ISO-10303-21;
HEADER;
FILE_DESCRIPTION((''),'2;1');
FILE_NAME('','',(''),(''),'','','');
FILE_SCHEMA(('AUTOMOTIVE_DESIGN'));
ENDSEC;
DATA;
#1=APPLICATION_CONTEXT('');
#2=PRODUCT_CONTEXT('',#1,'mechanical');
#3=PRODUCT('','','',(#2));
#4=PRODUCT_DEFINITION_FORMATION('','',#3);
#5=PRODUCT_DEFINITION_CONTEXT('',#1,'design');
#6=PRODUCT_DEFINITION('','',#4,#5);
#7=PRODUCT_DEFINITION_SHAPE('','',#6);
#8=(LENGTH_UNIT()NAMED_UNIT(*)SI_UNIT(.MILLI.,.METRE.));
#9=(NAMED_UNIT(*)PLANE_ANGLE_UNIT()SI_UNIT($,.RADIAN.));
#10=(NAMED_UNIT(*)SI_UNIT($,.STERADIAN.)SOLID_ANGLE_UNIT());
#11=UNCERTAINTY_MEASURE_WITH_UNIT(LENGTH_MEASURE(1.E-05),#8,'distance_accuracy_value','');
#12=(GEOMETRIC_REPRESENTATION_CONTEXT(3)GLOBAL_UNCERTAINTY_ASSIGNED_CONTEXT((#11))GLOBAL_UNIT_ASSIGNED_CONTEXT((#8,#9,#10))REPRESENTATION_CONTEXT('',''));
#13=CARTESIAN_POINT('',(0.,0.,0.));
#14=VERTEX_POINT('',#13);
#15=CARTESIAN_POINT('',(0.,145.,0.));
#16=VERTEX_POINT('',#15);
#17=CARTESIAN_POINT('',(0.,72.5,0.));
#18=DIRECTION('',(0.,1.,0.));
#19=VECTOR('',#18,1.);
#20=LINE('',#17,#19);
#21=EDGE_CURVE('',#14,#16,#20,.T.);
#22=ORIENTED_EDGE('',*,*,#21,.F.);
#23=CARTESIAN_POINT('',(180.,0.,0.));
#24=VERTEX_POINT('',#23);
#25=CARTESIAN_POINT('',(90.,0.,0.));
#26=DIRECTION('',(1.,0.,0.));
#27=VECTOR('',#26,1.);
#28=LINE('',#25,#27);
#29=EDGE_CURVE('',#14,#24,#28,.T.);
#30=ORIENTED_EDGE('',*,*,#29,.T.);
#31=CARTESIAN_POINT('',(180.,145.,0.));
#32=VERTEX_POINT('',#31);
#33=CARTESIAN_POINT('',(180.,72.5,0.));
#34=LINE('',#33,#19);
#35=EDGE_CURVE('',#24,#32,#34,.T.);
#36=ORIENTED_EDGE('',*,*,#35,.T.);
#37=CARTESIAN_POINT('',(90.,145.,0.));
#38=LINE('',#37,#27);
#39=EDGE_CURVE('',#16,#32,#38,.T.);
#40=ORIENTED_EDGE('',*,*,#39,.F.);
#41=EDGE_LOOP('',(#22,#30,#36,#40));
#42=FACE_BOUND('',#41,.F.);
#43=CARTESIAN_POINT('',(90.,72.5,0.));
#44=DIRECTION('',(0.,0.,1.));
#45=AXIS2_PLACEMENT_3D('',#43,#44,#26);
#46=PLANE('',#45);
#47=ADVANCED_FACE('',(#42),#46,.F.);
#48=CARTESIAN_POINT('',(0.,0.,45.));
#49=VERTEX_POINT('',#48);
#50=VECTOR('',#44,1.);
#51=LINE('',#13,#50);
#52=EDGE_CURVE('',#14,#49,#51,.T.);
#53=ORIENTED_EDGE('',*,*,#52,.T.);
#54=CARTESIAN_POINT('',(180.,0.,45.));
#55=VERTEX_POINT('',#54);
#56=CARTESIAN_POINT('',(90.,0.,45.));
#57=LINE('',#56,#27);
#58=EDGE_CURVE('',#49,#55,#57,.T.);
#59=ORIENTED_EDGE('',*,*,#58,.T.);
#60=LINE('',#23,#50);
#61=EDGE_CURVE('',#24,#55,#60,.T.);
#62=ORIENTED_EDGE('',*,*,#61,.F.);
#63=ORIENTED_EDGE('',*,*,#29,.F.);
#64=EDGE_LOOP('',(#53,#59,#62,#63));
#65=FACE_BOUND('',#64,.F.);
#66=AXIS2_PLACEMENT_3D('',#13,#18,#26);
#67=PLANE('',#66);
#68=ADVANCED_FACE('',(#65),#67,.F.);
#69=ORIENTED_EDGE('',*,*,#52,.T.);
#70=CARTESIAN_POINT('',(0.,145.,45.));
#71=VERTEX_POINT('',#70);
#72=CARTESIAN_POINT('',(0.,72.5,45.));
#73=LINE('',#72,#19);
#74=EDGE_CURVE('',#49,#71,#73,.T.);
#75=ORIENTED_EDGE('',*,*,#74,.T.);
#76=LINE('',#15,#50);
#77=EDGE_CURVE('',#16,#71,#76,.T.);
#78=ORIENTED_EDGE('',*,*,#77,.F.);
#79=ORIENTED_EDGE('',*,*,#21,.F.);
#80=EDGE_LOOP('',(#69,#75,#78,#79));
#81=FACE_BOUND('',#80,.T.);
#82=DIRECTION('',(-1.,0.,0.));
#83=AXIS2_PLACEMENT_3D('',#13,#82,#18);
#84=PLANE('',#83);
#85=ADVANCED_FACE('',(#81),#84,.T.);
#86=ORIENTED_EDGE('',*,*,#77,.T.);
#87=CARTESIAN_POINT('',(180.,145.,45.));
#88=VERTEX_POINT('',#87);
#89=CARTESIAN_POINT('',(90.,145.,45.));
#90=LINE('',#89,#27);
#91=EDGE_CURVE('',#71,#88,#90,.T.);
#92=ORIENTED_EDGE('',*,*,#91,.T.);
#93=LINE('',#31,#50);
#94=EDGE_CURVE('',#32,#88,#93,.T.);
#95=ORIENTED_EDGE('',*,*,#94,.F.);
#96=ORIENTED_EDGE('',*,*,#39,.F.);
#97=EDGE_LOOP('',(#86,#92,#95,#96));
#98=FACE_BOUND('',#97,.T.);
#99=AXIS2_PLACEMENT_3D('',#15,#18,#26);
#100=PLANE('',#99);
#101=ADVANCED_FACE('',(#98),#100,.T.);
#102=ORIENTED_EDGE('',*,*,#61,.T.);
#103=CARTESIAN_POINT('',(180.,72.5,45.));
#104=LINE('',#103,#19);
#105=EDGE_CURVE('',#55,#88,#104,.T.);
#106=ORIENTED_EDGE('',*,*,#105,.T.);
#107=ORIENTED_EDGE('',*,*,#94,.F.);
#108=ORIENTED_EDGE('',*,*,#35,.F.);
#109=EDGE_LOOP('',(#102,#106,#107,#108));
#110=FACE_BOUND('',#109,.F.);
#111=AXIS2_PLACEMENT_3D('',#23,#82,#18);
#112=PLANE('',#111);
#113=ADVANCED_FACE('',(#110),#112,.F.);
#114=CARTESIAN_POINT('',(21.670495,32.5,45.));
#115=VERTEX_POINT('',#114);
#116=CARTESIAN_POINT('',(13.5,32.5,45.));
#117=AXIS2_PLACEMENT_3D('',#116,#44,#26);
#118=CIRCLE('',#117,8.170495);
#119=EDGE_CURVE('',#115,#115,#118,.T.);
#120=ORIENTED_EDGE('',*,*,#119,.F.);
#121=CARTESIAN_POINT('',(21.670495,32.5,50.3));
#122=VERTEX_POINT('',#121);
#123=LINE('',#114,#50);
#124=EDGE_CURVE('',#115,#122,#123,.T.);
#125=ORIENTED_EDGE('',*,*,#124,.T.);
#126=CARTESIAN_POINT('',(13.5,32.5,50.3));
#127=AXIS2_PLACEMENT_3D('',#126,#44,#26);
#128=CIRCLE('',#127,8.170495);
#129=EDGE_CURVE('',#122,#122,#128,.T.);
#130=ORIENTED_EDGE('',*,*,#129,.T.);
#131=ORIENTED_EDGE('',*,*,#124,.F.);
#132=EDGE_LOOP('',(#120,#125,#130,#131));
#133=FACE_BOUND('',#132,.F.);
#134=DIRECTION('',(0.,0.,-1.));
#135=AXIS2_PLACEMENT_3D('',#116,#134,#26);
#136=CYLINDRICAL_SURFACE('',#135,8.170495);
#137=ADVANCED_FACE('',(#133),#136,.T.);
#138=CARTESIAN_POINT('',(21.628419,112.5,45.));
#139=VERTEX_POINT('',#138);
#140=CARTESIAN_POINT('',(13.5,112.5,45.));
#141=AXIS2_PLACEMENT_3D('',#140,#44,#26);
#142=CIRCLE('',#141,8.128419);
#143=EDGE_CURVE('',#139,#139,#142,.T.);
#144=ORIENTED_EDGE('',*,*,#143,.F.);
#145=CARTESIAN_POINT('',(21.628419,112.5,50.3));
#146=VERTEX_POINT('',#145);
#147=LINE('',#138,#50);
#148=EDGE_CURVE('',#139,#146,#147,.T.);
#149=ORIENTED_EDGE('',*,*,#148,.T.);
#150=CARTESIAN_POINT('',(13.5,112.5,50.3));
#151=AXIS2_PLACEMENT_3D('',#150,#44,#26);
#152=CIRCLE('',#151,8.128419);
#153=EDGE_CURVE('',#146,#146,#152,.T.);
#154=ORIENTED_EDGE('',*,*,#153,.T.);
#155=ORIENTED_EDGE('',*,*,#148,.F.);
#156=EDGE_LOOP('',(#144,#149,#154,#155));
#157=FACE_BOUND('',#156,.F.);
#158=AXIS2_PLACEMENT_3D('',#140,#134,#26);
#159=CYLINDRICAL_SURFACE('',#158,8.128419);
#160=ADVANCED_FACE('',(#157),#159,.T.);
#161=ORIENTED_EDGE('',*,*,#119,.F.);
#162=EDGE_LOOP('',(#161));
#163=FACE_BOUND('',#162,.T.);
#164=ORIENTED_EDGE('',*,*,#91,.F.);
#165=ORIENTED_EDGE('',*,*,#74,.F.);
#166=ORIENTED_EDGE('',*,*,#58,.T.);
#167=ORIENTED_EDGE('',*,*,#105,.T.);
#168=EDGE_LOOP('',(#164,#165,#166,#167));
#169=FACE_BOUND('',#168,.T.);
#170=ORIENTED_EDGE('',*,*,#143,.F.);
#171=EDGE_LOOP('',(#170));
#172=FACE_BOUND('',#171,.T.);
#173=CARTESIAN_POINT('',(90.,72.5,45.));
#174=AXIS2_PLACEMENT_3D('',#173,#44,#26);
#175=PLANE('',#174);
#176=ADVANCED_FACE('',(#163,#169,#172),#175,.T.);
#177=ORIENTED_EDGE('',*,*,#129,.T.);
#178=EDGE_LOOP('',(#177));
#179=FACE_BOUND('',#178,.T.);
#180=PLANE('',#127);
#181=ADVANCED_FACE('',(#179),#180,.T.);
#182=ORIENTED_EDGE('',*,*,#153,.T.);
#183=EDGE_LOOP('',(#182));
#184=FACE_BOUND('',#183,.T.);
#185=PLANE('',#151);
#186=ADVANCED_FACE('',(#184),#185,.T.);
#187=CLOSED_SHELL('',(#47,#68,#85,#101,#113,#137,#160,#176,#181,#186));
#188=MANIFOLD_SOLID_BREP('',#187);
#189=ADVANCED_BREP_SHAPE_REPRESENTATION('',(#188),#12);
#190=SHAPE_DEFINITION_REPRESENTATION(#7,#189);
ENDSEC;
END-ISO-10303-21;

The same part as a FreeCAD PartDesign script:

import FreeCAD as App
import Part
import Sketcher

V = App.Vector
Q = App.Units.Quantity


def add_polygon(sketch, points):
    """Adds a closed chain of lines whose ends are joined by coincident constraints."""
    first, n = sketch.GeometryCount, len(points)
    for a, b in zip(points, points[1:] + points[:1]):
        sketch.addGeometry(Part.LineSegment(App.Vector(*a, 0), App.Vector(*b, 0)), False)
    for i in range(n):
        sketch.addConstraint(Sketcher.Constraint("Coincident", first + i, 2, first + (i + 1) % n, 1))

doc = App.newDocument("Part")
params = doc.addObject("Spreadsheet::Sheet", "Params")
for row, (alias, value) in enumerate([
    ("sketch1_width", "180 mm"),
    ("sketch1_height", "145 mm"),
    ("pad1_length", "45 mm"),
    ("pad2_length", "5.3 mm"),
], start=1):
    params.set(f"A{row}", alias)
    params.set(f"B{row}", "=" + value)
    params.setAlias(f"B{row}", alias)

body = doc.addObject("PartDesign::Body", "Body")

# Sketch on XY plane
sketch1 = doc.addObject("Sketcher::SketchObject", "Sketch")
body.addObject(sketch1)
sketch1.AttachmentSupport = (doc.XY_Plane, [""])
sketch1.MapMode = "FlatFace"
add_polygon(sketch1, [(0, 145), (0, 0), (180, 0), (180, 145)])  # lines 0-3
sketch1.addConstraint([
    Sketcher.Constraint("Vertical", 0),
    Sketcher.Constraint("Horizontal", 1),
    Sketcher.Constraint("Vertical", 2),
    Sketcher.Constraint("Horizontal", 3),
    Sketcher.Constraint("Coincident", 0, 2, -1, 1),
    Sketcher.Constraint("DistanceX", 1, 1, 1, 2, Q("180 mm")),
    Sketcher.Constraint("DistanceY", 0, 2, 0, 1, Q("145 mm")),
])
sketch1.setExpression("Constraints[9]", "Params.sketch1_width")
sketch1.setExpression("Constraints[10]", "Params.sketch1_height")
pad1 = doc.addObject("PartDesign::Pad", "Pad")
body.addObject(pad1)
pad1.Profile = sketch1
pad1.setExpression("Length", "Params.pad1_length")

# Sketch on XY plane
sketch2 = doc.addObject("Sketcher::SketchObject", "Sketch001")
body.addObject(sketch2)
sketch2.AttachmentSupport = (doc.XY_Plane, [""])
sketch2.MapMode = "FlatFace"
sketch2.AttachmentOffset = App.Placement(V(0, 0, 45), App.Rotation())
sketch2.addGeometry([
    Part.Circle(V(14, 112, 0), V(0, 0, 1), 8),
    Part.Circle(V(14, 32, 0), V(0, 0, 1), 8),
], False)
sketch2.addConstraint([
    Sketcher.Constraint("Vertical", 0, 3, 1, 3),
    Sketcher.Constraint("DistanceY", 1, 3, 0, 3, Q("80 mm")),
    Sketcher.Constraint("DistanceX", -1, 1, 0, 3, Q("13.5 mm")),
    Sketcher.Constraint("DistanceY", -1, 1, 0, 3, Q("112.5 mm")),
    Sketcher.Constraint("Diameter", 1, Q("16.34099 mm")),
    Sketcher.Constraint("Diameter", 0, Q("16.256838 mm")),
])
pad2 = doc.addObject("PartDesign::Pad", "Pad001")
body.addObject(pad2)
pad2.Profile = sketch2
pad2.setExpression("Length", "Params.pad2_length")

doc.recompute()
